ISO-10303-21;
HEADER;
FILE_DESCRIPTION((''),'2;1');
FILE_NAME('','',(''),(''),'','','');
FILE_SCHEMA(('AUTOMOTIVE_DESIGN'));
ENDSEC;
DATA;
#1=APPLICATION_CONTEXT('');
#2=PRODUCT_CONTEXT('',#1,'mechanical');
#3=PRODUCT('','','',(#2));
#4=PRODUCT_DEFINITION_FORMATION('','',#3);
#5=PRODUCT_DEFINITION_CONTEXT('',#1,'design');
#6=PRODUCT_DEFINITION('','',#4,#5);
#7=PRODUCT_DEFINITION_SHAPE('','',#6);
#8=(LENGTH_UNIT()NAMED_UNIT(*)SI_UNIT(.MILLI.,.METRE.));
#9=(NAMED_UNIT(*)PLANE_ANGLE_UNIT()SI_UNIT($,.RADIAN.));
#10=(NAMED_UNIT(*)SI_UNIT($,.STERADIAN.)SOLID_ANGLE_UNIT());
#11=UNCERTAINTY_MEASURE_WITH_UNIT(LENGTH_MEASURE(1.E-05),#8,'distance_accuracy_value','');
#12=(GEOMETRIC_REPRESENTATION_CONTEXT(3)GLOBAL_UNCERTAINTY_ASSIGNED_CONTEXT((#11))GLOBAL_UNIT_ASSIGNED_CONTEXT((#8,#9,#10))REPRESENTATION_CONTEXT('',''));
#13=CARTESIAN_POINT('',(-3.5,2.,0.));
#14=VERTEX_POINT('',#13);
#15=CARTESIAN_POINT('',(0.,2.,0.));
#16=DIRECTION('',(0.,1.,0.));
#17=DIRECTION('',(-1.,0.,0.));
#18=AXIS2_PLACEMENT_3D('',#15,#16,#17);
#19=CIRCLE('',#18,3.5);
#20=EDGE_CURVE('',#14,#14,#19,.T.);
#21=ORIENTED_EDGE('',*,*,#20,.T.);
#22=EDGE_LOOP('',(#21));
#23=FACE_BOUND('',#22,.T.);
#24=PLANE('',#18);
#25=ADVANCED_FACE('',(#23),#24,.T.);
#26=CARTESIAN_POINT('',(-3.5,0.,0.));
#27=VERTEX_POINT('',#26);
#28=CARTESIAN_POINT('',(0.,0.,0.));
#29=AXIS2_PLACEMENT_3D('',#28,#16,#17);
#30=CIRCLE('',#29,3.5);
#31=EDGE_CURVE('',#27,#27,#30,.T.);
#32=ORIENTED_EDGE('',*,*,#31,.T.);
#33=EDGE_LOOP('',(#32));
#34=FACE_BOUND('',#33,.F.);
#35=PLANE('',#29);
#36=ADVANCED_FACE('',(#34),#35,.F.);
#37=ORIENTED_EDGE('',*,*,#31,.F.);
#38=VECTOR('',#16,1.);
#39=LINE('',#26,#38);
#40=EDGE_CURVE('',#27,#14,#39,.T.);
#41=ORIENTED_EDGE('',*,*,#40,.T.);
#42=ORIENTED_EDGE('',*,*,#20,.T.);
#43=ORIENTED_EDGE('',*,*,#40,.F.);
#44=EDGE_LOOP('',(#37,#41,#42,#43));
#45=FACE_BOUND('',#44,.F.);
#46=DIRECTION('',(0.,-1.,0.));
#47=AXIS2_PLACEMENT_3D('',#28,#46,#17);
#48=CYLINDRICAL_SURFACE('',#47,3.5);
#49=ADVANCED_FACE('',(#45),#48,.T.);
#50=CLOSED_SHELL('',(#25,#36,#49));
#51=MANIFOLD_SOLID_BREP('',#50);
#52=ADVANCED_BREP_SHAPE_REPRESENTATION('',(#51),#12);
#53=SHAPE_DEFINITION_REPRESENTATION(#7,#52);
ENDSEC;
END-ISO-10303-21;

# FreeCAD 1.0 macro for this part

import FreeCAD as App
import Part
import Sketcher

V = App.Vector

doc = App.newDocument("Part")
body = doc.addObject("PartDesign::Body", "Body")

sketch1 = body.newObject("Sketcher::SketchObject", "Sketch")
sketch1.AttachmentSupport = (doc.getObject("XZ_Plane"), [""])
sketch1.MapMode = "FlatFace"
sketch1.addGeometry(Part.Circle(V(0, 0, 0), V(0, 0, 1), 3.5), False)
sketch1.addConstraint(Sketcher.Constraint("Coincident", 0, 3, -1, 1))
sketch1.addConstraint(Sketcher.Constraint("Diameter", 0, 7.0))
pad1 = body.newObject("PartDesign::Pad", "Pad")
pad1.Profile = sketch1
pad1.Length = 2
pad1.Reversed = True

doc.recompute()
